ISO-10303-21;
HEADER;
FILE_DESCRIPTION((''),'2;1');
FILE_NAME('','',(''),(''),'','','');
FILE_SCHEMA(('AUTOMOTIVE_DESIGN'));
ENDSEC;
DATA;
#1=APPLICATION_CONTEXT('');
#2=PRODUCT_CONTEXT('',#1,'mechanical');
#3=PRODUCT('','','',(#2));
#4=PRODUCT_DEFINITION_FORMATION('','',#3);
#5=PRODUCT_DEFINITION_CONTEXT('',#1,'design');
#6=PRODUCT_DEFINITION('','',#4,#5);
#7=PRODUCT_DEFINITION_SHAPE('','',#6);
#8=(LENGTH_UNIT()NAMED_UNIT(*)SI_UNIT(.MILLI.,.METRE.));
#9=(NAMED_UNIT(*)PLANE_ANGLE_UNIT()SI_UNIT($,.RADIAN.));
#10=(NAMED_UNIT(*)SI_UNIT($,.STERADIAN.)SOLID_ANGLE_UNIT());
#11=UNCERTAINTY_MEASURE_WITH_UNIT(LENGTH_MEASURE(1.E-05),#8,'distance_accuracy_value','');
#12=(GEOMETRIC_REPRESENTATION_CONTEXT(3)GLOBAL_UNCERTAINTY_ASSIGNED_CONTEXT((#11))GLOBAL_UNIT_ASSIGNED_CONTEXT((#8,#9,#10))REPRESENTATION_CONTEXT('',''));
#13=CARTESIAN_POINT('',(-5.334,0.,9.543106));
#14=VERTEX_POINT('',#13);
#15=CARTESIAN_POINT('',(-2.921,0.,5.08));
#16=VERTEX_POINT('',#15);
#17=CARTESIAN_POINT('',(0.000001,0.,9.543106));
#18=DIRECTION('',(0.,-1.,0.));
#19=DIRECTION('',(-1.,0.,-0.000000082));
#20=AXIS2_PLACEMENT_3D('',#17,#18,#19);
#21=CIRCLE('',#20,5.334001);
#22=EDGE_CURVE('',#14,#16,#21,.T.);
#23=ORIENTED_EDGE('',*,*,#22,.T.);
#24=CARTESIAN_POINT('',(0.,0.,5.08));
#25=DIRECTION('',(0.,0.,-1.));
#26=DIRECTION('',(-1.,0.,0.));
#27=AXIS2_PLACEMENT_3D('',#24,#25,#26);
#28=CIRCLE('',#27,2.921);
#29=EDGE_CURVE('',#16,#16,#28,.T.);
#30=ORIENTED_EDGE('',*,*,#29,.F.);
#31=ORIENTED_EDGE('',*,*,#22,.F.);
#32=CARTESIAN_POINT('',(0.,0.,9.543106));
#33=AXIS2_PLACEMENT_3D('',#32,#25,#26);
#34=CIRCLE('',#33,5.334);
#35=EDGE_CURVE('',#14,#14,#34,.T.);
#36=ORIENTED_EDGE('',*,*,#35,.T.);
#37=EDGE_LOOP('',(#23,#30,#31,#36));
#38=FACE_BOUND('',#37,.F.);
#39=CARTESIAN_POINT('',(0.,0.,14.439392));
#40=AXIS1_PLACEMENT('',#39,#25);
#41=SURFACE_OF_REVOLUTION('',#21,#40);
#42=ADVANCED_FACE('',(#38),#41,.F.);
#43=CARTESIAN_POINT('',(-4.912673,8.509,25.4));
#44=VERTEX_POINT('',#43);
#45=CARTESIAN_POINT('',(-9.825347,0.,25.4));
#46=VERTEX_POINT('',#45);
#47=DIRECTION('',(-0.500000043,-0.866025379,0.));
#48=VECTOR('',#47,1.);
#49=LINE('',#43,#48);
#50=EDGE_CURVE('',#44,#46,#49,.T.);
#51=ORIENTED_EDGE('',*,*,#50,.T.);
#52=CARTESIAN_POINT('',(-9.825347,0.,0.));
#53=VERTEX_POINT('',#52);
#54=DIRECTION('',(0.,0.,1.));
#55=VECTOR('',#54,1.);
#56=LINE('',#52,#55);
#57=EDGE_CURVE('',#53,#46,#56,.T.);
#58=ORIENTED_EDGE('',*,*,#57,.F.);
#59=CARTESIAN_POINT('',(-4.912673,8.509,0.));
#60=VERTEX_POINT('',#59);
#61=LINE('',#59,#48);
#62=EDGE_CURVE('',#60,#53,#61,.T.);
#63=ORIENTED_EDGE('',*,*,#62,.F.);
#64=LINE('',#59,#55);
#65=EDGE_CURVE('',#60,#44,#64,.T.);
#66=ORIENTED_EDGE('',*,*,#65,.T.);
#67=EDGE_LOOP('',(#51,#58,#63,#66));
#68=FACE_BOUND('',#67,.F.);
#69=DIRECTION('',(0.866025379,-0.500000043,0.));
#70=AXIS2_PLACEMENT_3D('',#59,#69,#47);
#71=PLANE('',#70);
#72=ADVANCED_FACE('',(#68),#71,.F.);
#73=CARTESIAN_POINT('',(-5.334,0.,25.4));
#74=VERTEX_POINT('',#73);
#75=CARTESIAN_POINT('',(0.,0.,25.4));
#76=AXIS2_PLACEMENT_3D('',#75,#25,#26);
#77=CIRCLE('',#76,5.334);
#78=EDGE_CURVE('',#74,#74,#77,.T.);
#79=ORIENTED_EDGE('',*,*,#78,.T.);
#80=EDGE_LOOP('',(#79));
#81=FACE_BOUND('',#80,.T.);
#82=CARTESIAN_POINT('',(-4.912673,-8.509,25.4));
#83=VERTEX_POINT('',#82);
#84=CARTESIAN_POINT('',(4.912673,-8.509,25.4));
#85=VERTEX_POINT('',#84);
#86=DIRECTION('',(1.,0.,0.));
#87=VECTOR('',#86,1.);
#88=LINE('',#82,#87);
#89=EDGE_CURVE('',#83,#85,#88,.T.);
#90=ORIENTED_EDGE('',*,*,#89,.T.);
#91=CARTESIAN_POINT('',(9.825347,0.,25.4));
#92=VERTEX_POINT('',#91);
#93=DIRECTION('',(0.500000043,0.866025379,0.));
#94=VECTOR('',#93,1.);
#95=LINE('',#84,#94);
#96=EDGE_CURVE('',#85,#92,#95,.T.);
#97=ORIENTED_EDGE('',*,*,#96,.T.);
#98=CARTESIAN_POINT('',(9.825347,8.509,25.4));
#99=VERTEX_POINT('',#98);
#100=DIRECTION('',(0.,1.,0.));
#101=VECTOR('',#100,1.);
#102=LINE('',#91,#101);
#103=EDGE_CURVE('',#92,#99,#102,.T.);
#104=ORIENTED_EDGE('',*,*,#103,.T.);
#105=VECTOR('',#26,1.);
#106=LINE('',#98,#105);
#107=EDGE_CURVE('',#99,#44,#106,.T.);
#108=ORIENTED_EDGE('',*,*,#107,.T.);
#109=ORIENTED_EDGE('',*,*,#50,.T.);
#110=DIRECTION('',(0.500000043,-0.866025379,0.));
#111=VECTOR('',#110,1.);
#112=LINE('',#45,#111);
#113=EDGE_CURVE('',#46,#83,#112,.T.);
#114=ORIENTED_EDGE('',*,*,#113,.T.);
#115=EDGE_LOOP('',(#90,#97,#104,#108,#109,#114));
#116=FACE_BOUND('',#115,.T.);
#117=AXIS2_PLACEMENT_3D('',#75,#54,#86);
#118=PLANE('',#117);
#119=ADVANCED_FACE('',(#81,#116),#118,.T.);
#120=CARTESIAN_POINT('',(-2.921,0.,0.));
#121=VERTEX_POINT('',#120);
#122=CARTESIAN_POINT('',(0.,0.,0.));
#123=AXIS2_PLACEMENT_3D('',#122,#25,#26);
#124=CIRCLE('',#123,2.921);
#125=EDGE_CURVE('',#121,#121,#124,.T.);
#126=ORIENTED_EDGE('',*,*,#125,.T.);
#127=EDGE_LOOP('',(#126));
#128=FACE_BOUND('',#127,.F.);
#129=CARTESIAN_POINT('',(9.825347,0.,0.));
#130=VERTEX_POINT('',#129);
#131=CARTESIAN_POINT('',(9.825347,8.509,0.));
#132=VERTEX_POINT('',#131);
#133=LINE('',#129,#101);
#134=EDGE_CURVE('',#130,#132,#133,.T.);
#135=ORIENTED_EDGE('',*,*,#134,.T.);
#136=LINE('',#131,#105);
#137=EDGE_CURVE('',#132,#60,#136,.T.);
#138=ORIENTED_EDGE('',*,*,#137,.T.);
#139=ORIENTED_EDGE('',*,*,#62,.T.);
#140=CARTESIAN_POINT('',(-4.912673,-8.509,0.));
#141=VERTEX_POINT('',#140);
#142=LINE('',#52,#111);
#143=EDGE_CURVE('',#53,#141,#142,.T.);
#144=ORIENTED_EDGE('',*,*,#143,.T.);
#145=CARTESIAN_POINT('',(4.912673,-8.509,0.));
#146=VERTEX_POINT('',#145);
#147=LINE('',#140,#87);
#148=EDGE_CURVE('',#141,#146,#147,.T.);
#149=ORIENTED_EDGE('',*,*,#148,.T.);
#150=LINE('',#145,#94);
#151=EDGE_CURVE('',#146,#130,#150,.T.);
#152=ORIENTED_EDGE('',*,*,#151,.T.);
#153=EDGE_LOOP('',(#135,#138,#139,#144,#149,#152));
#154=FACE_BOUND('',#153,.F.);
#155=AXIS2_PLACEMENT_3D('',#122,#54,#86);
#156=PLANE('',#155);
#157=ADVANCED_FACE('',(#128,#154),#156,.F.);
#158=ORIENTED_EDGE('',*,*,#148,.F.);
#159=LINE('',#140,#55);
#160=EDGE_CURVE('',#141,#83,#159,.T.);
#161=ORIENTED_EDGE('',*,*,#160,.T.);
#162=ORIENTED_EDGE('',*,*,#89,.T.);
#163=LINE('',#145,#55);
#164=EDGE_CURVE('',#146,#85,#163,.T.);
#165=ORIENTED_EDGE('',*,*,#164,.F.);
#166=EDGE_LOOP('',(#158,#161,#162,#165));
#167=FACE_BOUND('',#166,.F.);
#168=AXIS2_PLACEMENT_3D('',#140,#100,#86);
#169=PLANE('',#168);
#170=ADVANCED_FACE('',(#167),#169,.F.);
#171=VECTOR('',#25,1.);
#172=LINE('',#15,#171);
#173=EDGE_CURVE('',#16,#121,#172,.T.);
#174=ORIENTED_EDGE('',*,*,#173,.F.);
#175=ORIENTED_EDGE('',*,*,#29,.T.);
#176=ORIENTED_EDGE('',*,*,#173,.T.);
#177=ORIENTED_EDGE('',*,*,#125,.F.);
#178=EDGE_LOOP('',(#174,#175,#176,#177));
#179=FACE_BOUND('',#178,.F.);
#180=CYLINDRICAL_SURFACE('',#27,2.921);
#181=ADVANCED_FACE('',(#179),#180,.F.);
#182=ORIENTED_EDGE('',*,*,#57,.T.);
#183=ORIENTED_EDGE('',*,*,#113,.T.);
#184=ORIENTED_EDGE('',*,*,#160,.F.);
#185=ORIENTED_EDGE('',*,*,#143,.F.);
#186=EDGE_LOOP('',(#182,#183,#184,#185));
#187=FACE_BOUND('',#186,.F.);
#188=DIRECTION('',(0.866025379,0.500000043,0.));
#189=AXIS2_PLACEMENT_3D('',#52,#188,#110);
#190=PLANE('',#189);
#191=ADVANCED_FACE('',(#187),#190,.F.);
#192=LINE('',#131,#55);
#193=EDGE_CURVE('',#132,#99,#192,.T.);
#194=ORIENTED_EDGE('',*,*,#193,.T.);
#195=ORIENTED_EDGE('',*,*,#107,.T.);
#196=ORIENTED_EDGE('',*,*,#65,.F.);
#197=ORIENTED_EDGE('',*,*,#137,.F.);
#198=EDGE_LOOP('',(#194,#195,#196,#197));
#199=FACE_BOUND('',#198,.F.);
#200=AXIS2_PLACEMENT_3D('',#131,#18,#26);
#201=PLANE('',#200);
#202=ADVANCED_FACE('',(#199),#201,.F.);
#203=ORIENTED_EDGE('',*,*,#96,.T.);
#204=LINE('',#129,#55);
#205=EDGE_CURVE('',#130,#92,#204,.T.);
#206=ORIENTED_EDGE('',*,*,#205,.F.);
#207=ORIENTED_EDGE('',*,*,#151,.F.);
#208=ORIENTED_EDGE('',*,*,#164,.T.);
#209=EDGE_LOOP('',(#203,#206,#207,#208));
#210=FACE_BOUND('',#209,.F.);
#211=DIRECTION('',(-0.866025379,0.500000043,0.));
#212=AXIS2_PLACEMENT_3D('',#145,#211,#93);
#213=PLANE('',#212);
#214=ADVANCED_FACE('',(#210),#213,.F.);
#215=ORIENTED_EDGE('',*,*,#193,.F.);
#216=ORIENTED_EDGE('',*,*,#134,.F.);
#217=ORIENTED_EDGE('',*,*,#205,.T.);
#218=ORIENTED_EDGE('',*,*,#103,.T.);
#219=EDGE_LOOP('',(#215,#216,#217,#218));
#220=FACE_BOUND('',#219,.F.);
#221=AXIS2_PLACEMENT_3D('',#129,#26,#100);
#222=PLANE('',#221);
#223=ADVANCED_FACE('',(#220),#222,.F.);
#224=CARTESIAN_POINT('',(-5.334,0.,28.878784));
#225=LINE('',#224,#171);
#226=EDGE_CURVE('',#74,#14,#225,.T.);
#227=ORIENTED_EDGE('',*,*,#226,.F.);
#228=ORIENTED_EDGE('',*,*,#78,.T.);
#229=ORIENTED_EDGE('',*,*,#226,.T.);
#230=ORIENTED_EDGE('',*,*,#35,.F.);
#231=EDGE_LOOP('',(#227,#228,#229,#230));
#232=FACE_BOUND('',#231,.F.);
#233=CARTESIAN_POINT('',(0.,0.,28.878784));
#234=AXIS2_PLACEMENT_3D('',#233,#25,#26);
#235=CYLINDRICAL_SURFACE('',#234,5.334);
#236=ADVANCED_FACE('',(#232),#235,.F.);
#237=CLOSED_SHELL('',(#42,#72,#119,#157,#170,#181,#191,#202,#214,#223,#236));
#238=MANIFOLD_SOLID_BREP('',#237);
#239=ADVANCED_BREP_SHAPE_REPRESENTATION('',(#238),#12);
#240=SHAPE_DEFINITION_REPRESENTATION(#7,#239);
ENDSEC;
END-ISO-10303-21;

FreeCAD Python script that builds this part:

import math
import FreeCAD as App
import Part
import Sketcher
from FreeCAD import Vector
Q = App.Units.Quantity


def add_polygon(sketch, points):
    """Adds a closed chain of lines whose ends are joined by coincident constraints."""
    first, n = sketch.GeometryCount, len(points)
    for a, b in zip(points, points[1:] + points[:1]):
        sketch.addGeometry(Part.LineSegment(App.Vector(*a, 0), App.Vector(*b, 0)), False)
    for i in range(n):
        sketch.addConstraint(Sketcher.Constraint("Coincident", first + i, 2, first + (i + 1) % n, 1))

doc = App.newDocument("Part")
body = doc.addObject("PartDesign::Body", "Body")

# Sketch on XY plane
sketch1 = body.newObject("Sketcher::SketchObject", "Sketch")
sketch1.AttachmentSupport = (doc.getObject("XY_Plane"), [""])
sketch1.MapMode = "FlatFace"
add_polygon(sketch1, [(-5, 9), (-10, 0), (-5, -9), (5, -9), (10, 0), (10, 9)])  # lines 0-5
sketch1.addConstraint([
    Sketcher.Constraint("Horizontal", 2),
    Sketcher.Constraint("Vertical", 4),
    Sketcher.Constraint("Horizontal", 5),
    Sketcher.Constraint("Symmetric", 0, 2, 3, 2, -1, 1),
    Sketcher.Constraint("Symmetric", 2, 2, 5, 2, -1, 1),
    Sketcher.Constraint("PointOnObject", 0, 2, -1),
    Sketcher.Constraint("Vertical", 1, 2, 5, 2),
    Sketcher.Constraint("Angle", 0, Q("-120.000003 deg")),
    Sketcher.Constraint("DistanceY", 4, 1, 4, 2, Q("0.335 in")),
    Sketcher.Constraint("DistanceX", 5, 2, 5, 1, 14.73802),
])
pad1 = body.newObject("PartDesign::Pad", "Pad")
pad1.Profile = sketch1
pad1.Length = Q("1 in")

# Sketch on XZ plane
sketch2 = body.newObject("Sketcher::SketchObject", "Sketch001")
sketch2.AttachmentSupport = (doc.getObject("XZ_Plane"), [""])
sketch2.MapMode = "FlatFace"
sketch2.addGeometry([
    Part.LineSegment(Vector(-2.9, 5.1, 0), Vector(-2.9, 0, 0)),  # 0
    Part.LineSegment(Vector(-2.9, 0, 0), Vector(0, 0, 0)),  # 1
    Part.LineSegment(Vector(0, 0, 0), Vector(0, 28.9, 0)),  # 2
    Part.LineSegment(Vector(0, 28.9, 0), Vector(-5.3, 28.9, 0)),  # 3
    Part.LineSegment(Vector(-5.3, 28.9, 0), Vector(-5.3, 9.5, 0)),  # 4
    Part.ArcOfCircle(Part.Circle(Vector(0, 9.5, 0), Vector(0, 0, 1), 5.3), math.radians(-180), math.radians(-123)),  # 5
], False)
sketch2.addConstraint([
    Sketcher.Constraint("Coincident", 0, 2, 1, 1),
    Sketcher.Constraint("Coincident", 1, 2, 2, 1),
    Sketcher.Constraint("Coincident", 2, 2, 3, 1),
    Sketcher.Constraint("Coincident", 3, 2, 4, 1),
    Sketcher.Constraint("Tangent", 4, 2, 5, 1),
    Sketcher.Constraint("Coincident", 5, 2, 0, 1),
    Sketcher.Constraint("Vertical", 0),
    Sketcher.Constraint("Horizontal", 1),
    Sketcher.Constraint("Vertical", 2),
    Sketcher.Constraint("Horizontal", 3),
    Sketcher.Constraint("Vertical", 4),
    Sketcher.Constraint("Coincident", 1, 2, -1, 1),
    Sketcher.Constraint("PointOnObject", 5, 3, -2),
    Sketcher.Constraint("Radius", 5, Q("0.21 in")),
    Sketcher.Constraint("DistanceY", 0, 2, 0, 1, Q("0.2 in")),
    Sketcher.Constraint("DistanceX", 1, 1, 1, 2, Q("0.115 in")),
    Sketcher.Constraint("DistanceY", 4, 2, 4, 1, 19.335678),
])
groove = body.newObject("PartDesign::Groove", "Groove")
groove.Profile = sketch2
groove.ReferenceAxis = (sketch2, ["V_Axis"])
groove.Angle = 360

doc.recompute()
